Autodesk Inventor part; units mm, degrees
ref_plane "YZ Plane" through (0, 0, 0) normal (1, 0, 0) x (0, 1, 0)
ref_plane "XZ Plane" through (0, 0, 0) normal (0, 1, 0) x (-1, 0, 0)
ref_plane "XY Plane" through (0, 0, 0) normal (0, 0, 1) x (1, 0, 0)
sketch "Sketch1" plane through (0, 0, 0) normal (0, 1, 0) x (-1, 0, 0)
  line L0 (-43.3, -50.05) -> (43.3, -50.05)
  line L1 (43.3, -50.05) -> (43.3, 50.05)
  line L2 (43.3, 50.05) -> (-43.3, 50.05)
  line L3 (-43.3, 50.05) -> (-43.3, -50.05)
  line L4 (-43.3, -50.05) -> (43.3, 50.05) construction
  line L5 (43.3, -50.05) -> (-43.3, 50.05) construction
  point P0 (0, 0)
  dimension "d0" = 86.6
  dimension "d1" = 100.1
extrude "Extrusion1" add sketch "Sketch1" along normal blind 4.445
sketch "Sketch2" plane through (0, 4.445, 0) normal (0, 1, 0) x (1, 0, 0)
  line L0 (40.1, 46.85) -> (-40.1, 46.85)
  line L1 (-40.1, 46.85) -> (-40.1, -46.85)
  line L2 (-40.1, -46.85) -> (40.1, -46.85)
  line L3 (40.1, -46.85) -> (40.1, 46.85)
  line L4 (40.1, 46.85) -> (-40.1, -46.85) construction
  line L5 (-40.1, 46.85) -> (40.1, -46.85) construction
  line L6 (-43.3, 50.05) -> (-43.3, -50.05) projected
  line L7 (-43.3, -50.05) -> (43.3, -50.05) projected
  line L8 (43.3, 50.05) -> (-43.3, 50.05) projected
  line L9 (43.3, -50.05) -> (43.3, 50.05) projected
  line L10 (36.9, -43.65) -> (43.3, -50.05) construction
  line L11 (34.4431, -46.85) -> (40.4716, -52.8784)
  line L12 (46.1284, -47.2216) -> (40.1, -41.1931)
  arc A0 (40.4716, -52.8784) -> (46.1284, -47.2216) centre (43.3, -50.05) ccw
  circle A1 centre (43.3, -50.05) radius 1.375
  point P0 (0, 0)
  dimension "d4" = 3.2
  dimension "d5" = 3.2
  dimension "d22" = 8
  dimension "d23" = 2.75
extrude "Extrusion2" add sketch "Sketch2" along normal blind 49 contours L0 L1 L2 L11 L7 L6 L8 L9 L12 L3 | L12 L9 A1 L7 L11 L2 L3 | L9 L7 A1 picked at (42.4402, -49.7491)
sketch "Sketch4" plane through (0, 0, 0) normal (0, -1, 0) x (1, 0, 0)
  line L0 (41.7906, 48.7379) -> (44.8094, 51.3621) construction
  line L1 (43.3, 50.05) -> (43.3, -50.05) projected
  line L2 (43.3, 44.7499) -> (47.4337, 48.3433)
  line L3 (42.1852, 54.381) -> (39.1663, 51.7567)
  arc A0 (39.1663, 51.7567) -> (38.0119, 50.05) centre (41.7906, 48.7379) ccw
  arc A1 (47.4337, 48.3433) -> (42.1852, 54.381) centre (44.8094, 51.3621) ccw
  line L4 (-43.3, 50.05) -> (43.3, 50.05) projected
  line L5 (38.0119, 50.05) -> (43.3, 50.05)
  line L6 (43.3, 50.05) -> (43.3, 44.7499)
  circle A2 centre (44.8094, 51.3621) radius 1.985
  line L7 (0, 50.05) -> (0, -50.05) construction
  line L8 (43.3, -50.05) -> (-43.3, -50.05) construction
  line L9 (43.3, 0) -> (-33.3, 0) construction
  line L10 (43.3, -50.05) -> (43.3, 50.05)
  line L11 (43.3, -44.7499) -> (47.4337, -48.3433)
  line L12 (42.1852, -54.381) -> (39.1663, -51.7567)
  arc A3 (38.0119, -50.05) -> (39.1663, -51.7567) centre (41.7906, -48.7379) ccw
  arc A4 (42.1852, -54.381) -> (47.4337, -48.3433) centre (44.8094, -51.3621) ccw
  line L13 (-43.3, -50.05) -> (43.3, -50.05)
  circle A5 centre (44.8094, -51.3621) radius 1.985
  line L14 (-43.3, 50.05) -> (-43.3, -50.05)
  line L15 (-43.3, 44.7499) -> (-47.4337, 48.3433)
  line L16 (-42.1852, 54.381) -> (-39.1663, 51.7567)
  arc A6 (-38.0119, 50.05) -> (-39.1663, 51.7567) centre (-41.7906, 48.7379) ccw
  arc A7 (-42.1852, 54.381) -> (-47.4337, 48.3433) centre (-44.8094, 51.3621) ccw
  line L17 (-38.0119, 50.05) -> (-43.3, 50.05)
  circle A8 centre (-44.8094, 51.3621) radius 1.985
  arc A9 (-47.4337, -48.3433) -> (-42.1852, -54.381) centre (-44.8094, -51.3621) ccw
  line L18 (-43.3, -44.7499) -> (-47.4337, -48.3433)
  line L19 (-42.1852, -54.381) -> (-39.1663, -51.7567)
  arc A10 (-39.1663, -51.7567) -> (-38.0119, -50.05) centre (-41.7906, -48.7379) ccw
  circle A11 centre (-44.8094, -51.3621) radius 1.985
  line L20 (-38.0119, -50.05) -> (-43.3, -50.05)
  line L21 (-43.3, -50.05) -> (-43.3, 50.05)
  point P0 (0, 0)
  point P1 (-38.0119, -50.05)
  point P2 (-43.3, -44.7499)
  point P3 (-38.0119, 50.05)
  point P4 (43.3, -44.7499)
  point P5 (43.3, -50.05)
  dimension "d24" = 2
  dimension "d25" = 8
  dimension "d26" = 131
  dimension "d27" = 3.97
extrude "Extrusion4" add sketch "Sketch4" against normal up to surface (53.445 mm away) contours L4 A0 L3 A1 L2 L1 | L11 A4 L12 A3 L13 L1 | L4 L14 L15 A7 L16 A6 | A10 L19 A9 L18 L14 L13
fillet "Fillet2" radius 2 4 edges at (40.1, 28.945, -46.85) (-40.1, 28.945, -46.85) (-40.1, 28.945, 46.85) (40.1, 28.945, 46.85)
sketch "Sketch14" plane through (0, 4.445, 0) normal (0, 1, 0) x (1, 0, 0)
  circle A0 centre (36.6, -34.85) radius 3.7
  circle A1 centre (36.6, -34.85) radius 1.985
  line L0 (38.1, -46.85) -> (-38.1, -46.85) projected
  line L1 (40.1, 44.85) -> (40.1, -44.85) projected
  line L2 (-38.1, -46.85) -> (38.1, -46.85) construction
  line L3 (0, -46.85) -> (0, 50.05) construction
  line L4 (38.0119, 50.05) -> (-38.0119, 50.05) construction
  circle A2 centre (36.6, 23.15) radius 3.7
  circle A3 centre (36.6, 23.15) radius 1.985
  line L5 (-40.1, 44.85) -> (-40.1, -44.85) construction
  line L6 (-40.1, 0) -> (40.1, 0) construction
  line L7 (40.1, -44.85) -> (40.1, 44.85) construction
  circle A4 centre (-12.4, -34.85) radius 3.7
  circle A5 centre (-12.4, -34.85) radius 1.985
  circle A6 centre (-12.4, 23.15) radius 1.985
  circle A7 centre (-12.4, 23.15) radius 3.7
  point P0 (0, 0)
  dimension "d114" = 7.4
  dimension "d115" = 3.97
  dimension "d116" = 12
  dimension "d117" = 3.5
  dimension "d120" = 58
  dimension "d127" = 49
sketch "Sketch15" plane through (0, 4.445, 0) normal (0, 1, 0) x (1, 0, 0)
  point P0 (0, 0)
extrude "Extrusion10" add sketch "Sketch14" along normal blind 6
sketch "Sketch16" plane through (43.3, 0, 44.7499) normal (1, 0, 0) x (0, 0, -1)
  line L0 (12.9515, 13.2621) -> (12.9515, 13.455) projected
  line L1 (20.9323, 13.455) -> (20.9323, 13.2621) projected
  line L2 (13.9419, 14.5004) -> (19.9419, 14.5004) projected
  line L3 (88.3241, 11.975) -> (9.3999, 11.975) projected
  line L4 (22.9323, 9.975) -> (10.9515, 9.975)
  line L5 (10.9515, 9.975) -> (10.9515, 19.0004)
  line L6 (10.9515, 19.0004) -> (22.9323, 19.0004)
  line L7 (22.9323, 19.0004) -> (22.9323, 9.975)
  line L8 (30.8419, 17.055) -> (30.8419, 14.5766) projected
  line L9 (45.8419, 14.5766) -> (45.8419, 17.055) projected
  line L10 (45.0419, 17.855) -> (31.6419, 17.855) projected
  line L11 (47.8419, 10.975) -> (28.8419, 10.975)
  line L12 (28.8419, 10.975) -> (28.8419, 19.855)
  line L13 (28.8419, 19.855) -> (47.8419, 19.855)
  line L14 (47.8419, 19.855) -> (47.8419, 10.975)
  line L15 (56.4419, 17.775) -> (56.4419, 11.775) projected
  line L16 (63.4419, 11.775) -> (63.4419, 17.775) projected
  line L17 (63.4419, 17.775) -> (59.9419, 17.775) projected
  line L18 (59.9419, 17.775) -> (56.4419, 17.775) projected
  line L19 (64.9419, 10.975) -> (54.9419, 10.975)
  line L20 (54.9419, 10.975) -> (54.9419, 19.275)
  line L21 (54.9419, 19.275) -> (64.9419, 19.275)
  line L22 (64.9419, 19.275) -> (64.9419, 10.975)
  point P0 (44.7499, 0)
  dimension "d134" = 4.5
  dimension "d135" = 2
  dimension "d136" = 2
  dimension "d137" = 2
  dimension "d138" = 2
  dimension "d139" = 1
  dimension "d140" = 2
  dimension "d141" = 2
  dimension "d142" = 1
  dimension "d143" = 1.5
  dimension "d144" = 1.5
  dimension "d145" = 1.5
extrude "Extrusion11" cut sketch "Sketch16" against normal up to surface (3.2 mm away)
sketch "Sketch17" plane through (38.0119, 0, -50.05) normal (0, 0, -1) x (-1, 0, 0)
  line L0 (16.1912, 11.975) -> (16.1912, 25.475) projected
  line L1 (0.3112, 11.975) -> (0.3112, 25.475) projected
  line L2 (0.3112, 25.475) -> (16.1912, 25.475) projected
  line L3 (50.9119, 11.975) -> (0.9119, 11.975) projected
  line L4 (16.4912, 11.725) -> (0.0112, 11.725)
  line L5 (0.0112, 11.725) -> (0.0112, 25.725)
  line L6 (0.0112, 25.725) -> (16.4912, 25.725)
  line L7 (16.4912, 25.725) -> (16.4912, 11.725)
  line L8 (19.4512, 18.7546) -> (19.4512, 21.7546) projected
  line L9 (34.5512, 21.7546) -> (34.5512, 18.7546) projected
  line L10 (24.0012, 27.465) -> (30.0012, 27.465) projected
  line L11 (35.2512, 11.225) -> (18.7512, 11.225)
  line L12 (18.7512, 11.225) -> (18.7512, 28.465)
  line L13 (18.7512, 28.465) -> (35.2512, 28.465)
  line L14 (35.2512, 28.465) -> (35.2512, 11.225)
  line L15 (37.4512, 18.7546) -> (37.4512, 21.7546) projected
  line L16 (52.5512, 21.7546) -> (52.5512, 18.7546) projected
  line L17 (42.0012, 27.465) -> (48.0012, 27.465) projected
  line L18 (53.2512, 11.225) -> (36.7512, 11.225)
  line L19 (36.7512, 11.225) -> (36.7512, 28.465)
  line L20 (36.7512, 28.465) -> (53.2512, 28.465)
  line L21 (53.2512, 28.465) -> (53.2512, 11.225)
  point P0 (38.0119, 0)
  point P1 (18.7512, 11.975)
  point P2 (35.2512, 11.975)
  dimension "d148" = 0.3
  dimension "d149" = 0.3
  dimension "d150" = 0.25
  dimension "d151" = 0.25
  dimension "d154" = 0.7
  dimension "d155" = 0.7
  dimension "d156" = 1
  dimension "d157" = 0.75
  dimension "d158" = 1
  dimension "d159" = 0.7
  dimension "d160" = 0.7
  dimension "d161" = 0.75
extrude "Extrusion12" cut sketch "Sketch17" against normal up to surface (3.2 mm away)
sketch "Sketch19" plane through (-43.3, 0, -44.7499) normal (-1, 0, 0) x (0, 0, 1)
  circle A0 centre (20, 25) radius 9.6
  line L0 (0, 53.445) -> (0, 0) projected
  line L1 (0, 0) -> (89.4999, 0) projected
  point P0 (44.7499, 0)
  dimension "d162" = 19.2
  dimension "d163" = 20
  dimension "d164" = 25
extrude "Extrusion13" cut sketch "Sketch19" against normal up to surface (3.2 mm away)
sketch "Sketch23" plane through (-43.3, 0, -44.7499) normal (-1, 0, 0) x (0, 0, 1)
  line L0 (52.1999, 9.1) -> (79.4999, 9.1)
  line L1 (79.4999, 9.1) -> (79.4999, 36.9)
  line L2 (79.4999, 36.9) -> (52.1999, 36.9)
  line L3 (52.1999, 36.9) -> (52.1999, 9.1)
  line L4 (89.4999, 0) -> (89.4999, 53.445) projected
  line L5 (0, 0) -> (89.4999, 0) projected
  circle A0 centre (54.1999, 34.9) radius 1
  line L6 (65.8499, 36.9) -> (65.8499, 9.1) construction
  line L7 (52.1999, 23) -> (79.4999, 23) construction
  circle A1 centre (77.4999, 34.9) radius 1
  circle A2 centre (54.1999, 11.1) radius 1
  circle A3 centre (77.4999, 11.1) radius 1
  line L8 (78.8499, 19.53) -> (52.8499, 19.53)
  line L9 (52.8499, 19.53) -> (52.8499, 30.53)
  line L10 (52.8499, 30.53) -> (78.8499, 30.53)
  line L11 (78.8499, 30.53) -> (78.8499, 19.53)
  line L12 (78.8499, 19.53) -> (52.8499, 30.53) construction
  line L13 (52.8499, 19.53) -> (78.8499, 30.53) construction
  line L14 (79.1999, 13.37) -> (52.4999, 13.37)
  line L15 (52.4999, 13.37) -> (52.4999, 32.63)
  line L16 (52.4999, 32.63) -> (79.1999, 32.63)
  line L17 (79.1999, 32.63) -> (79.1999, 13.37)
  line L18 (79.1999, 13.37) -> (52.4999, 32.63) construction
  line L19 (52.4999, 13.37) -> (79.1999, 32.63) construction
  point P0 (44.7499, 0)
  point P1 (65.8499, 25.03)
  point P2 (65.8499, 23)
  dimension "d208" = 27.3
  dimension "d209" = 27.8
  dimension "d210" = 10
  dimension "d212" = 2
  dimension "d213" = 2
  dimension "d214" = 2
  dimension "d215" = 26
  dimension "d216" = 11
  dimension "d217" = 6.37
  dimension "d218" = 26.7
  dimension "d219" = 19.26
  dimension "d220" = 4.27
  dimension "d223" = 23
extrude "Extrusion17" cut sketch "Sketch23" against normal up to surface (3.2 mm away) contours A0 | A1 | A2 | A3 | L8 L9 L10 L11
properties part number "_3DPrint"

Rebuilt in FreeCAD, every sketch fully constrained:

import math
import FreeCAD as App
import Part
import Sketcher
from FreeCAD import Vector
Q = App.Units.Quantity


def edges_at(feature, points):
    """Names of the edges that pass closest to the given points."""
    edges = feature.Shape.Edges
    near = lambda p: min(range(len(edges)), key=lambda i: edges[i].distToShape(Part.Vertex(*p))[0])
    return sorted({f"Edge{near(p) + 1}" for p in points})


def add_polygon(sketch, points):
    """Adds a closed chain of lines whose ends are joined by coincident constraints."""
    first, n = sketch.GeometryCount, len(points)
    for a, b in zip(points, points[1:] + points[:1]):
        sketch.addGeometry(Part.LineSegment(App.Vector(*a, 0), App.Vector(*b, 0)), False)
    for i in range(n):
        sketch.addConstraint(Sketcher.Constraint("Coincident", first + i, 2, first + (i + 1) % n, 1))

doc = App.newDocument("Part")
body = doc.addObject("PartDesign::Body", "Body")

sketch1 = body.newObject("Sketcher::SketchObject", "Sketch")
sketch1.AttachmentSupport = (doc.getObject("XZ_Plane"), [""])
sketch1.MapMode = "FlatFace"
add_polygon(sketch1, [(43, 50), (43, -50), (-43, -50), (-43, 50)])
sketch1.addConstraint([
    Sketcher.Constraint("Vertical", 0),
    Sketcher.Constraint("Horizontal", 1),
    Sketcher.Constraint("Vertical", 2),
    Sketcher.Constraint("Horizontal", 3),
    Sketcher.Constraint("Symmetric", 0, 2, 2, 2, -1, 1),
    Sketcher.Constraint("DistanceX", 1, 2, 1, 1, Q("86.6 mm")),
    Sketcher.Constraint("DistanceY", 0, 2, 0, 1, Q("100.1 mm")),
])
pad1 = body.newObject("PartDesign::Pad", "Pad")
pad1.Profile = sketch1
pad1.Length = 4.445
pad1.Reversed = True

sketch2 = body.newObject("Sketcher::SketchObject", "Sketch001")
sketch2.AttachmentSupport = (doc.getObject("XZ_Plane"), [""])
sketch2.MapMode = "FlatFace"
sketch2.AttachmentOffset = App.Placement(Vector(0, 0, -4.445), App.Rotation())
add_polygon(sketch2, [(-43, 50), (43, 50), (43, -50), (-43, -50)])
add_polygon(sketch2, [(-40, -47), (40, -47), (40, 47), (-40, 47)])
sketch2.addConstraint([
    Sketcher.Constraint("Horizontal", 0),
    Sketcher.Constraint("Vertical", 1),
    Sketcher.Constraint("Horizontal", 2),
    Sketcher.Constraint("Vertical", 3),
    Sketcher.Constraint("Horizontal", 4),
    Sketcher.Constraint("Vertical", 5),
    Sketcher.Constraint("Horizontal", 6),
    Sketcher.Constraint("Vertical", 7),
    Sketcher.Constraint("Symmetric", 0, 2, 2, 2, -1, 1),
    Sketcher.Constraint("Symmetric", 4, 2, 6, 2, -1, 1),
    Sketcher.Constraint("DistanceX", 4, 2, 1, 2, Q("3.2 mm")),
    Sketcher.Constraint("DistanceY", 1, 2, 4, 2, Q("3.2 mm")),
    Sketcher.Constraint("DistanceX", 0, 1, 0, 2, Q("86.6 mm")),
    Sketcher.Constraint("DistanceY", 1, 2, 1, 1, Q("100.1 mm")),
])
pad2 = body.newObject("PartDesign::Pad", "Pad001")
pad2.Profile = sketch2
pad2.Length = 49
pad2.Reversed = True

sketch3 = body.newObject("Sketcher::SketchObject", "Sketch002")
sketch3.AttachmentSupport = (doc.getObject("XZ_Plane"), [""])
sketch3.MapMode = "FlatFace"
sketch3.addGeometry([
    Part.LineSegment(Vector(38, 50, 0), Vector(43.3, 50, 0)),
    Part.LineSegment(Vector(43.3, 50, 0), Vector(43.3, 44.7, 0)),
    Part.LineSegment(Vector(43.3, 44.7, 0), Vector(47.4, 48.3, 0)),
    Part.ArcOfCircle(Part.Circle(Vector(44.8, 51.4, 0), Vector(0, 0, 1), 4), math.radians(-49), math.radians(131)),
    Part.LineSegment(Vector(42.2, 54.4, 0), Vector(39.2, 51.8, 0)),
    Part.ArcOfCircle(Part.Circle(Vector(41.8, 48.7, 0), Vector(0, 0, 1), 4), math.radians(131), math.radians(161)),
    Part.Circle(Vector(44.8, 51.4, 0), Vector(0, 0, 1), 2),
    Part.LineSegment(Vector(47.4, -48.3, 0), Vector(43.3, -44.7, 0)),
    Part.LineSegment(Vector(43.3, -44.7, 0), Vector(43.3, -50, 0)),
    Part.LineSegment(Vector(43.3, -50, 0), Vector(38, -50, 0)),
    Part.ArcOfCircle(Part.Circle(Vector(41.8, -48.7, 0), Vector(0, 0, 1), 4), math.radians(-161), math.radians(-131)),
    Part.LineSegment(Vector(39.2, -51.8, 0), Vector(42.2, -54.4, 0)),
    Part.ArcOfCircle(Part.Circle(Vector(44.8, -51.4, 0), Vector(0, 0, 1), 4), math.radians(-131), math.radians(49)),
    Part.Circle(Vector(44.8, -51.4, 0), Vector(0, 0, 1), 2),
    Part.LineSegment(Vector(-43.3, 50, 0), Vector(-38, 50, 0)),
    Part.ArcOfCircle(Part.Circle(Vector(-41.8, 48.7, 0), Vector(0, 0, 1), 4), math.radians(19), math.radians(49)),
    Part.LineSegment(Vector(-39.2, 51.8, 0), Vector(-42.2, 54.4, 0)),
    Part.ArcOfCircle(Part.Circle(Vector(-44.8, 51.4, 0), Vector(0, 0, 1), 4), math.radians(49), math.radians(229)),
    Part.LineSegment(Vector(-47.4, 48.3, 0), Vector(-43.3, 44.7, 0)),
    Part.LineSegment(Vector(-43.3, 44.7, 0), Vector(-43.3, 50, 0)),
    Part.Circle(Vector(-44.8, 51.4, 0), Vector(0, 0, 1), 2),
    Part.ArcOfCircle(Part.Circle(Vector(-41.8, -48.7, 0), Vector(0, 0, 1), 4), math.radians(-49), math.radians(-19)),
    Part.LineSegment(Vector(-38, -50, 0), Vector(-43.3, -50, 0)),
    Part.LineSegment(Vector(-43.3, -50, 0), Vector(-43.3, -44.7, 0)),
    Part.LineSegment(Vector(-43.3, -44.7, 0), Vector(-47.4, -48.3, 0)),
    Part.ArcOfCircle(Part.Circle(Vector(-44.8, -51.4, 0), Vector(0, 0, 1), 4), math.radians(131), math.radians(311)),
    Part.LineSegment(Vector(-42.2, -54.4, 0), Vector(-39.2, -51.8, 0)),
    Part.Circle(Vector(-44.8, -51.4, 0), Vector(0, 0, 1), 2),
], False)
sketch3.addConstraint([
    Sketcher.Constraint("Coincident", 0, 2, 1, 1),
    Sketcher.Constraint("Coincident", 1, 2, 2, 1),
    Sketcher.Constraint("Tangent", 2, 2, 3, 1),
    Sketcher.Constraint("Tangent", 3, 2, 4, 1),
    Sketcher.Constraint("Tangent", 4, 2, 5, 1),
    Sketcher.Constraint("Coincident", 5, 2, 0, 1),
    Sketcher.Constraint("Coincident", 7, 2, 8, 1),
    Sketcher.Constraint("Coincident", 8, 2, 9, 1),
    Sketcher.Constraint("Coincident", 9, 2, 10, 1),
    Sketcher.Constraint("Tangent", 10, 2, 11, 1),
    Sketcher.Constraint("Tangent", 11, 2, 12, 1),
    Sketcher.Constraint("Tangent", 12, 2, 7, 1),
    Sketcher.Constraint("Coincident", 14, 2, 15, 1),
    Sketcher.Constraint("Tangent", 15, 2, 16, 1),
    Sketcher.Constraint("Tangent", 16, 2, 17, 1),
    Sketcher.Constraint("Tangent", 17, 2, 18, 1),
    Sketcher.Constraint("Coincident", 18, 2, 19, 1),
    Sketcher.Constraint("Coincident", 19, 2, 14, 1),
    Sketcher.Constraint("Coincident", 21, 2, 22, 1),
    Sketcher.Constraint("Coincident", 22, 2, 23, 1),
    Sketcher.Constraint("Coincident", 23, 2, 24, 1),
    Sketcher.Constraint("Tangent", 24, 2, 25, 1),
    Sketcher.Constraint("Tangent", 25, 2, 26, 1),
    Sketcher.Constraint("Tangent", 26, 2, 21, 1),
    Sketcher.Constraint("Horizontal", 0),
    Sketcher.Constraint("Vertical", 1),
    Sketcher.Constraint("Vertical", 8),
    Sketcher.Constraint("Horizontal", 9),
    Sketcher.Constraint("Horizontal", 14),
    Sketcher.Constraint("Vertical", 19),
    Sketcher.Constraint("Horizontal", 22),
    Sketcher.Constraint("Vertical", 23),
    Sketcher.Constraint("Coincident", 6, 3, 3, 3),
    Sketcher.Constraint("Coincident", 13, 3, 12, 3),
    Sketcher.Constraint("Coincident", 20, 3, 17, 3),
    Sketcher.Constraint("Coincident", 27, 3, 25, 3),
    Sketcher.Constraint("Equal", 3, 5),
    Sketcher.Constraint("Equal", 5, 10),
    Sketcher.Constraint("Equal", 10, 12),
    Sketcher.Constraint("Equal", 6, 13),
    Sketcher.Constraint("Equal", 12, 15),
    Sketcher.Constraint("Equal", 15, 17),
    Sketcher.Constraint("Equal", 13, 20),
    Sketcher.Constraint("Equal", 17, 21),
    Sketcher.Constraint("Equal", 21, 25),
    Sketcher.Constraint("Equal", 20, 27),
    Sketcher.Constraint("Symmetric", 10, 3, 15, 3, -1, 1),
    Sketcher.Constraint("Symmetric", 12, 3, 17, 3, -1, 1),
    Sketcher.Constraint("Symmetric", 5, 3, 21, 3, -1, 1),
    Sketcher.Constraint("Symmetric", 3, 3, 25, 3, -1, 1),
    Sketcher.Constraint("Symmetric", 7, 2, 18, 2, -1, 1),
    Sketcher.Constraint("Symmetric", 0, 2, 22, 2, -1, 1),
    Sketcher.Constraint("Symmetric", 5, 3, 15, 3, -2),
    Sketcher.Constraint("Symmetric", 3, 3, 17, 3, -2),
    Sketcher.Constraint("Symmetric", 1, 2, 18, 2, -2),
    Sketcher.Constraint("Parallel", 2, 4),
    Sketcher.Constraint("Parallel", 4, 24),
    Sketcher.Constraint("Horizontal", 5, 2, 14, 2),
    Sketcher.Constraint("Horizontal", 9, 2, 21, 2),
    Sketcher.Constraint("Radius", 3, Q("4 mm")),
    Sketcher.Constraint("Diameter", 6, Q("3.97 mm")),
    Sketcher.Constraint("Angle", 2, Q("41.0002 deg")),
    Sketcher.Constraint("Distance", 4, Q("4 mm")),
    Sketcher.Constraint("DistanceY", 1, 2, 1, 1, Q("5.3 mm")),
    Sketcher.Constraint("DistanceX", -1, 1, 0, 2, Q("43.3 mm")),
    Sketcher.Constraint("DistanceY", 10, 3, 3, 3, Q("100.1 mm")),
    Sketcher.Constraint("DistanceX", 15, 3, 3, 3, Q("86.6 mm")),
])
pad3 = body.newObject("PartDesign::Pad", "Pad002")
pad3.Profile = sketch3
pad3.Length = 53.445
pad3.Reversed = True
doc.recompute()

fillet = body.newObject("PartDesign::Fillet", "Fillet")
fillet.Base = (pad3, edges_at(pad3, [
    (40.1, 28.945, -46.85),
    (-40.1, 28.945, -46.85),
    (-40.1, 28.945, 46.85),
    (40.1, 28.945, 46.85),
]))
fillet.Radius = 2

sketch4 = body.newObject("Sketcher::SketchObject", "Sketch003")
sketch4.AttachmentSupport = (doc.getObject("XZ_Plane"), [""])
sketch4.MapMode = "FlatFace"
sketch4.AttachmentOffset = App.Placement(Vector(0, 0, -4.445), App.Rotation())
sketch4.addGeometry([
    Part.Circle(Vector(36.6, 34.9, 0), Vector(0, 0, 1), 3.7),
    Part.Circle(Vector(36.6, 34.9, 0), Vector(0, 0, 1), 2),
    Part.Circle(Vector(36.6, -23.1, 0), Vector(0, 0, 1), 3.7),
    Part.Circle(Vector(36.6, -23.1, 0), Vector(0, 0, 1), 2),
    Part.Circle(Vector(-12.4, 34.9, 0), Vector(0, 0, 1), 3.7),
    Part.Circle(Vector(-12.4, 34.9, 0), Vector(0, 0, 1), 2),
    Part.Circle(Vector(-12.4, -23.1, 0), Vector(0, 0, 1), 3.7),
    Part.Circle(Vector(-12.4, -23.1, 0), Vector(0, 0, 1), 2),
], False)
sketch4.addConstraint([
    Sketcher.Constraint("Coincident", 1, 3, 0, 3),
    Sketcher.Constraint("Coincident", 3, 3, 2, 3),
    Sketcher.Constraint("Coincident", 5, 3, 4, 3),
    Sketcher.Constraint("Coincident", 7, 3, 6, 3),
    Sketcher.Constraint("Equal", 0, 2),
    Sketcher.Constraint("Equal", 1, 3),
    Sketcher.Constraint("Equal", 2, 4),
    Sketcher.Constraint("Equal", 3, 5),
    Sketcher.Constraint("Equal", 4, 6),
    Sketcher.Constraint("Equal", 5, 7),
    Sketcher.Constraint("Horizontal", 1, 3, 4, 3),
    Sketcher.Constraint("Horizontal", 3, 3, 6, 3),
    Sketcher.Constraint("Vertical", 1, 3, 2, 3),
    Sketcher.Constraint("Vertical", 5, 3, 6, 3),
    Sketcher.Constraint("Diameter", 0, Q("7.4 mm")),
    Sketcher.Constraint("Diameter", 1, Q("3.97 mm")),
    Sketcher.Constraint("DistanceY", 2, 3, 0, 3, Q("58 mm")),
    Sketcher.Constraint("DistanceX", 4, 3, 0, 3, Q("49 mm")),
    Sketcher.Constraint("DistanceX", -1, 1, 0, 3, Q("36.6 mm")),
    Sketcher.Constraint("DistanceY", -1, 1, 0, 3, Q("34.85 mm")),
])
pad4 = body.newObject("PartDesign::Pad", "Pad003")
pad4.Profile = sketch4
pad4.Length = 6
pad4.Reversed = True

sketch5 = body.newObject("Sketcher::SketchObject", "Sketch004")
sketch5.AttachmentSupport = (doc.getObject("YZ_Plane"), [""])
sketch5.MapMode = "FlatFace"
sketch5.AttachmentOffset = App.Placement(Vector(0, 0, 43.3), App.Rotation())
add_polygon(sketch5, [(11, -20), (19, -20), (19, -10), (11, -10)])
add_polygon(sketch5, [(10, 22), (19, 22), (19, 34), (10, 34)])
add_polygon(sketch5, [(11, -3), (20, -3), (20, 16), (11, 16)])
sketch5.addConstraint([
    Sketcher.Constraint("Horizontal", 0),
    Sketcher.Constraint("Vertical", 1),
    Sketcher.Constraint("Horizontal", 2),
    Sketcher.Constraint("Vertical", 3),
    Sketcher.Constraint("Horizontal", 4),
    Sketcher.Constraint("Vertical", 5),
    Sketcher.Constraint("Horizontal", 6),
    Sketcher.Constraint("Vertical", 7),
    Sketcher.Constraint("Horizontal", 8),
    Sketcher.Constraint("Vertical", 9),
    Sketcher.Constraint("Horizontal", 10),
    Sketcher.Constraint("Vertical", 11),
    Sketcher.Constraint("Vertical", 3, 2, 10, 2),
    Sketcher.Constraint("DistanceX", 6, 2, 2, 2, Q("1 mm")),
    Sketcher.Constraint("DistanceY", 1, 1, 1, 2, Q("10 mm")),
    Sketcher.Constraint("DistanceY", 9, 1, 9, 2, Q("19 mm")),
    Sketcher.Constraint("DistanceX", 0, 1, 0, 2, Q("8.3 mm")),
    Sketcher.Constraint("DistanceX", 8, 1, 8, 2, Q("8.88 mm")),
    Sketcher.Constraint("DistanceY", 1, 2, 8, 2, Q("7.1 mm")),
    Sketcher.Constraint("DistanceX", 4, 1, 4, 2, Q("9.0254 mm")),
    Sketcher.Constraint("DistanceY", 5, 1, 5, 2, Q("11.9808 mm")),
    Sketcher.Constraint("DistanceX", -1, 1, 0, 2, Q("19.275 mm")),
    Sketcher.Constraint("DistanceY", 0, 2, -1, 1, Q("20.192 mm")),
    Sketcher.Constraint("DistanceY", -1, 1, 4, 2, Q("21.8176 mm")),
])
pocket1 = body.newObject("PartDesign::Pocket", "Pocket")
pocket1.Profile = sketch5
pocket1.Length = 3.2

sketch6 = body.newObject("Sketcher::SketchObject", "Sketch005")
sketch6.AttachmentSupport = (doc.getObject("XY_Plane"), [""])
sketch6.MapMode = "FlatFace"
sketch6.AttachmentOffset = App.Placement(Vector(0, 0, -50.05), App.Rotation())
add_polygon(sketch6, [(22, 12), (22, 26), (38, 26), (38, 12)])
add_polygon(sketch6, [(3, 11), (3, 28), (19, 28), (19, 11)])
add_polygon(sketch6, [(1, 28), (1, 11), (-15, 11), (-15, 28)])
sketch6.addConstraint([
    Sketcher.Constraint("Vertical", 0),
    Sketcher.Constraint("Horizontal", 1),
    Sketcher.Constraint("Vertical", 2),
    Sketcher.Constraint("Horizontal", 3),
    Sketcher.Constraint("Vertical", 4),
    Sketcher.Constraint("Horizontal", 5),
    Sketcher.Constraint("Vertical", 6),
    Sketcher.Constraint("Horizontal", 7),
    Sketcher.Constraint("Vertical", 8),
    Sketcher.Constraint("Horizontal", 9),
    Sketcher.Constraint("Vertical", 10),
    Sketcher.Constraint("Horizontal", 11),
    Sketcher.Constraint("Horizontal", 7, 2, 8, 2),
    Sketcher.Constraint("Horizontal", 5, 2, 10, 2),
    Sketcher.Constraint("Equal", 7, 9),
    Sketcher.Constraint("DistanceY", 0, 1, 0, 2, Q("14 mm")),
    Sketcher.Constraint("DistanceX", 5, 1, 5, 2, Q("16.5 mm")),
    Sketcher.Constraint("DistanceX", 8, 2, 6, 2, Q("18 mm")),
    Sketcher.Constraint("DistanceX", 1, 1, 1, 2, Q("16.48 mm")),
    Sketcher.Constraint("DistanceY", 4, 1, 4, 2, Q("17.24 mm")),
    Sketcher.Constraint("DistanceY", 6, 2, 3, 2, Q("0.5 mm")),
    Sketcher.Constraint("DistanceX", 4, 2, 0, 2, Q("18.76 mm")),
    Sketcher.Constraint("DistanceY", -1, 1, 0, 2, Q("25.725 mm")),
    Sketcher.Constraint("DistanceX", -1, 1, 0, 2, Q("21.5207 mm")),
])
pocket2 = body.newObject("PartDesign::Pocket", "Pocket001")
pocket2.Profile = sketch6
pocket2.Length = 3.2
pocket2.Reversed = True

sketch7 = body.newObject("Sketcher::SketchObject", "Sketch006")
sketch7.AttachmentSupport = (doc.getObject("YZ_Plane"), [""])
sketch7.MapMode = "FlatFace"
sketch7.AttachmentOffset = App.Placement(Vector(0, 0, -43.3), App.Rotation())
sketch7.addGeometry(Part.Circle(Vector(25, -25, 0), Vector(0, 0, 1), 10), False)
sketch7.addConstraint([
    Sketcher.Constraint("Diameter", 0, Q("19.2 mm")),
    Sketcher.Constraint("DistanceX", -1, 1, 0, 3, Q("25 mm")),
    Sketcher.Constraint("DistanceY", 0, 3, -1, 1, Q("24.75 mm")),
])
pocket3 = body.newObject("PartDesign::Pocket", "Pocket002")
pocket3.Profile = sketch7
pocket3.Length = 3.2
pocket3.Reversed = True

sketch8 = body.newObject("Sketcher::SketchObject", "Sketch007")
sketch8.AttachmentSupport = (doc.getObject("YZ_Plane"), [""])
sketch8.MapMode = "FlatFace"
sketch8.AttachmentOffset = App.Placement(Vector(0, 0, -43.3), App.Rotation())
sketch8.addGeometry(Part.Circle(Vector(34.9, 9.4, 0), Vector(0, 0, 1), 1), False)
sketch8.addGeometry(Part.Circle(Vector(34.9, 32.8, 0), Vector(0, 0, 1), 1), False)
sketch8.addGeometry(Part.Circle(Vector(11.1, 9.4, 0), Vector(0, 0, 1), 1), False)
sketch8.addGeometry(Part.Circle(Vector(11.1, 32.8, 0), Vector(0, 0, 1), 1), False)
add_polygon(sketch8, [(19.5, 8.1), (19.5, 34.1), (30.5, 34.1), (30.5, 8.1)])
sketch8.addConstraint([
    Sketcher.Constraint("Vertical", 4),
    Sketcher.Constraint("Horizontal", 5),
    Sketcher.Constraint("Vertical", 6),
    Sketcher.Constraint("Horizontal", 7),
    Sketcher.Constraint("Equal", 0, 1),
    Sketcher.Constraint("Equal", 1, 2),
    Sketcher.Constraint("Equal", 2, 3),
    Sketcher.Constraint("Horizontal", 0, 3, 2, 3),
    Sketcher.Constraint("Horizontal", 1, 3, 3, 3),
    Sketcher.Constraint("Vertical", 0, 3, 1, 3),
    Sketcher.Constraint("Vertical", 2, 3, 3, 3),
    Sketcher.Constraint("Diameter", 0, Q("2 mm")),
    Sketcher.Constraint("DistanceX", 5, 1, 5, 2, Q("11 mm")),
    Sketcher.Constraint("DistanceY", 4, 1, 4, 2, Q("26 mm")),
    Sketcher.Constraint("DistanceX", -1, 1, 0, 3, Q("34.9 mm")),
    Sketcher.Constraint("DistanceX", -1, 1, 2, 3, Q("11.1 mm")),
    Sketcher.Constraint("DistanceY", -1, 1, 4, 2, Q("34.1 mm")),
    Sketcher.Constraint("DistanceY", 0, 3, 1, 3, Q("23.3 mm")),
    Sketcher.Constraint("DistanceY", -1, 1, 0, 3, Q("9.45 mm")),
    Sketcher.Constraint("DistanceX", -1, 1, 4, 2, Q("19.53 mm")),
])
pocket4 = body.newObject("PartDesign::Pocket", "Pocket003")
pocket4.Profile = sketch8
pocket4.Length = 3.2
pocket4.Reversed = True

doc.recompute()
